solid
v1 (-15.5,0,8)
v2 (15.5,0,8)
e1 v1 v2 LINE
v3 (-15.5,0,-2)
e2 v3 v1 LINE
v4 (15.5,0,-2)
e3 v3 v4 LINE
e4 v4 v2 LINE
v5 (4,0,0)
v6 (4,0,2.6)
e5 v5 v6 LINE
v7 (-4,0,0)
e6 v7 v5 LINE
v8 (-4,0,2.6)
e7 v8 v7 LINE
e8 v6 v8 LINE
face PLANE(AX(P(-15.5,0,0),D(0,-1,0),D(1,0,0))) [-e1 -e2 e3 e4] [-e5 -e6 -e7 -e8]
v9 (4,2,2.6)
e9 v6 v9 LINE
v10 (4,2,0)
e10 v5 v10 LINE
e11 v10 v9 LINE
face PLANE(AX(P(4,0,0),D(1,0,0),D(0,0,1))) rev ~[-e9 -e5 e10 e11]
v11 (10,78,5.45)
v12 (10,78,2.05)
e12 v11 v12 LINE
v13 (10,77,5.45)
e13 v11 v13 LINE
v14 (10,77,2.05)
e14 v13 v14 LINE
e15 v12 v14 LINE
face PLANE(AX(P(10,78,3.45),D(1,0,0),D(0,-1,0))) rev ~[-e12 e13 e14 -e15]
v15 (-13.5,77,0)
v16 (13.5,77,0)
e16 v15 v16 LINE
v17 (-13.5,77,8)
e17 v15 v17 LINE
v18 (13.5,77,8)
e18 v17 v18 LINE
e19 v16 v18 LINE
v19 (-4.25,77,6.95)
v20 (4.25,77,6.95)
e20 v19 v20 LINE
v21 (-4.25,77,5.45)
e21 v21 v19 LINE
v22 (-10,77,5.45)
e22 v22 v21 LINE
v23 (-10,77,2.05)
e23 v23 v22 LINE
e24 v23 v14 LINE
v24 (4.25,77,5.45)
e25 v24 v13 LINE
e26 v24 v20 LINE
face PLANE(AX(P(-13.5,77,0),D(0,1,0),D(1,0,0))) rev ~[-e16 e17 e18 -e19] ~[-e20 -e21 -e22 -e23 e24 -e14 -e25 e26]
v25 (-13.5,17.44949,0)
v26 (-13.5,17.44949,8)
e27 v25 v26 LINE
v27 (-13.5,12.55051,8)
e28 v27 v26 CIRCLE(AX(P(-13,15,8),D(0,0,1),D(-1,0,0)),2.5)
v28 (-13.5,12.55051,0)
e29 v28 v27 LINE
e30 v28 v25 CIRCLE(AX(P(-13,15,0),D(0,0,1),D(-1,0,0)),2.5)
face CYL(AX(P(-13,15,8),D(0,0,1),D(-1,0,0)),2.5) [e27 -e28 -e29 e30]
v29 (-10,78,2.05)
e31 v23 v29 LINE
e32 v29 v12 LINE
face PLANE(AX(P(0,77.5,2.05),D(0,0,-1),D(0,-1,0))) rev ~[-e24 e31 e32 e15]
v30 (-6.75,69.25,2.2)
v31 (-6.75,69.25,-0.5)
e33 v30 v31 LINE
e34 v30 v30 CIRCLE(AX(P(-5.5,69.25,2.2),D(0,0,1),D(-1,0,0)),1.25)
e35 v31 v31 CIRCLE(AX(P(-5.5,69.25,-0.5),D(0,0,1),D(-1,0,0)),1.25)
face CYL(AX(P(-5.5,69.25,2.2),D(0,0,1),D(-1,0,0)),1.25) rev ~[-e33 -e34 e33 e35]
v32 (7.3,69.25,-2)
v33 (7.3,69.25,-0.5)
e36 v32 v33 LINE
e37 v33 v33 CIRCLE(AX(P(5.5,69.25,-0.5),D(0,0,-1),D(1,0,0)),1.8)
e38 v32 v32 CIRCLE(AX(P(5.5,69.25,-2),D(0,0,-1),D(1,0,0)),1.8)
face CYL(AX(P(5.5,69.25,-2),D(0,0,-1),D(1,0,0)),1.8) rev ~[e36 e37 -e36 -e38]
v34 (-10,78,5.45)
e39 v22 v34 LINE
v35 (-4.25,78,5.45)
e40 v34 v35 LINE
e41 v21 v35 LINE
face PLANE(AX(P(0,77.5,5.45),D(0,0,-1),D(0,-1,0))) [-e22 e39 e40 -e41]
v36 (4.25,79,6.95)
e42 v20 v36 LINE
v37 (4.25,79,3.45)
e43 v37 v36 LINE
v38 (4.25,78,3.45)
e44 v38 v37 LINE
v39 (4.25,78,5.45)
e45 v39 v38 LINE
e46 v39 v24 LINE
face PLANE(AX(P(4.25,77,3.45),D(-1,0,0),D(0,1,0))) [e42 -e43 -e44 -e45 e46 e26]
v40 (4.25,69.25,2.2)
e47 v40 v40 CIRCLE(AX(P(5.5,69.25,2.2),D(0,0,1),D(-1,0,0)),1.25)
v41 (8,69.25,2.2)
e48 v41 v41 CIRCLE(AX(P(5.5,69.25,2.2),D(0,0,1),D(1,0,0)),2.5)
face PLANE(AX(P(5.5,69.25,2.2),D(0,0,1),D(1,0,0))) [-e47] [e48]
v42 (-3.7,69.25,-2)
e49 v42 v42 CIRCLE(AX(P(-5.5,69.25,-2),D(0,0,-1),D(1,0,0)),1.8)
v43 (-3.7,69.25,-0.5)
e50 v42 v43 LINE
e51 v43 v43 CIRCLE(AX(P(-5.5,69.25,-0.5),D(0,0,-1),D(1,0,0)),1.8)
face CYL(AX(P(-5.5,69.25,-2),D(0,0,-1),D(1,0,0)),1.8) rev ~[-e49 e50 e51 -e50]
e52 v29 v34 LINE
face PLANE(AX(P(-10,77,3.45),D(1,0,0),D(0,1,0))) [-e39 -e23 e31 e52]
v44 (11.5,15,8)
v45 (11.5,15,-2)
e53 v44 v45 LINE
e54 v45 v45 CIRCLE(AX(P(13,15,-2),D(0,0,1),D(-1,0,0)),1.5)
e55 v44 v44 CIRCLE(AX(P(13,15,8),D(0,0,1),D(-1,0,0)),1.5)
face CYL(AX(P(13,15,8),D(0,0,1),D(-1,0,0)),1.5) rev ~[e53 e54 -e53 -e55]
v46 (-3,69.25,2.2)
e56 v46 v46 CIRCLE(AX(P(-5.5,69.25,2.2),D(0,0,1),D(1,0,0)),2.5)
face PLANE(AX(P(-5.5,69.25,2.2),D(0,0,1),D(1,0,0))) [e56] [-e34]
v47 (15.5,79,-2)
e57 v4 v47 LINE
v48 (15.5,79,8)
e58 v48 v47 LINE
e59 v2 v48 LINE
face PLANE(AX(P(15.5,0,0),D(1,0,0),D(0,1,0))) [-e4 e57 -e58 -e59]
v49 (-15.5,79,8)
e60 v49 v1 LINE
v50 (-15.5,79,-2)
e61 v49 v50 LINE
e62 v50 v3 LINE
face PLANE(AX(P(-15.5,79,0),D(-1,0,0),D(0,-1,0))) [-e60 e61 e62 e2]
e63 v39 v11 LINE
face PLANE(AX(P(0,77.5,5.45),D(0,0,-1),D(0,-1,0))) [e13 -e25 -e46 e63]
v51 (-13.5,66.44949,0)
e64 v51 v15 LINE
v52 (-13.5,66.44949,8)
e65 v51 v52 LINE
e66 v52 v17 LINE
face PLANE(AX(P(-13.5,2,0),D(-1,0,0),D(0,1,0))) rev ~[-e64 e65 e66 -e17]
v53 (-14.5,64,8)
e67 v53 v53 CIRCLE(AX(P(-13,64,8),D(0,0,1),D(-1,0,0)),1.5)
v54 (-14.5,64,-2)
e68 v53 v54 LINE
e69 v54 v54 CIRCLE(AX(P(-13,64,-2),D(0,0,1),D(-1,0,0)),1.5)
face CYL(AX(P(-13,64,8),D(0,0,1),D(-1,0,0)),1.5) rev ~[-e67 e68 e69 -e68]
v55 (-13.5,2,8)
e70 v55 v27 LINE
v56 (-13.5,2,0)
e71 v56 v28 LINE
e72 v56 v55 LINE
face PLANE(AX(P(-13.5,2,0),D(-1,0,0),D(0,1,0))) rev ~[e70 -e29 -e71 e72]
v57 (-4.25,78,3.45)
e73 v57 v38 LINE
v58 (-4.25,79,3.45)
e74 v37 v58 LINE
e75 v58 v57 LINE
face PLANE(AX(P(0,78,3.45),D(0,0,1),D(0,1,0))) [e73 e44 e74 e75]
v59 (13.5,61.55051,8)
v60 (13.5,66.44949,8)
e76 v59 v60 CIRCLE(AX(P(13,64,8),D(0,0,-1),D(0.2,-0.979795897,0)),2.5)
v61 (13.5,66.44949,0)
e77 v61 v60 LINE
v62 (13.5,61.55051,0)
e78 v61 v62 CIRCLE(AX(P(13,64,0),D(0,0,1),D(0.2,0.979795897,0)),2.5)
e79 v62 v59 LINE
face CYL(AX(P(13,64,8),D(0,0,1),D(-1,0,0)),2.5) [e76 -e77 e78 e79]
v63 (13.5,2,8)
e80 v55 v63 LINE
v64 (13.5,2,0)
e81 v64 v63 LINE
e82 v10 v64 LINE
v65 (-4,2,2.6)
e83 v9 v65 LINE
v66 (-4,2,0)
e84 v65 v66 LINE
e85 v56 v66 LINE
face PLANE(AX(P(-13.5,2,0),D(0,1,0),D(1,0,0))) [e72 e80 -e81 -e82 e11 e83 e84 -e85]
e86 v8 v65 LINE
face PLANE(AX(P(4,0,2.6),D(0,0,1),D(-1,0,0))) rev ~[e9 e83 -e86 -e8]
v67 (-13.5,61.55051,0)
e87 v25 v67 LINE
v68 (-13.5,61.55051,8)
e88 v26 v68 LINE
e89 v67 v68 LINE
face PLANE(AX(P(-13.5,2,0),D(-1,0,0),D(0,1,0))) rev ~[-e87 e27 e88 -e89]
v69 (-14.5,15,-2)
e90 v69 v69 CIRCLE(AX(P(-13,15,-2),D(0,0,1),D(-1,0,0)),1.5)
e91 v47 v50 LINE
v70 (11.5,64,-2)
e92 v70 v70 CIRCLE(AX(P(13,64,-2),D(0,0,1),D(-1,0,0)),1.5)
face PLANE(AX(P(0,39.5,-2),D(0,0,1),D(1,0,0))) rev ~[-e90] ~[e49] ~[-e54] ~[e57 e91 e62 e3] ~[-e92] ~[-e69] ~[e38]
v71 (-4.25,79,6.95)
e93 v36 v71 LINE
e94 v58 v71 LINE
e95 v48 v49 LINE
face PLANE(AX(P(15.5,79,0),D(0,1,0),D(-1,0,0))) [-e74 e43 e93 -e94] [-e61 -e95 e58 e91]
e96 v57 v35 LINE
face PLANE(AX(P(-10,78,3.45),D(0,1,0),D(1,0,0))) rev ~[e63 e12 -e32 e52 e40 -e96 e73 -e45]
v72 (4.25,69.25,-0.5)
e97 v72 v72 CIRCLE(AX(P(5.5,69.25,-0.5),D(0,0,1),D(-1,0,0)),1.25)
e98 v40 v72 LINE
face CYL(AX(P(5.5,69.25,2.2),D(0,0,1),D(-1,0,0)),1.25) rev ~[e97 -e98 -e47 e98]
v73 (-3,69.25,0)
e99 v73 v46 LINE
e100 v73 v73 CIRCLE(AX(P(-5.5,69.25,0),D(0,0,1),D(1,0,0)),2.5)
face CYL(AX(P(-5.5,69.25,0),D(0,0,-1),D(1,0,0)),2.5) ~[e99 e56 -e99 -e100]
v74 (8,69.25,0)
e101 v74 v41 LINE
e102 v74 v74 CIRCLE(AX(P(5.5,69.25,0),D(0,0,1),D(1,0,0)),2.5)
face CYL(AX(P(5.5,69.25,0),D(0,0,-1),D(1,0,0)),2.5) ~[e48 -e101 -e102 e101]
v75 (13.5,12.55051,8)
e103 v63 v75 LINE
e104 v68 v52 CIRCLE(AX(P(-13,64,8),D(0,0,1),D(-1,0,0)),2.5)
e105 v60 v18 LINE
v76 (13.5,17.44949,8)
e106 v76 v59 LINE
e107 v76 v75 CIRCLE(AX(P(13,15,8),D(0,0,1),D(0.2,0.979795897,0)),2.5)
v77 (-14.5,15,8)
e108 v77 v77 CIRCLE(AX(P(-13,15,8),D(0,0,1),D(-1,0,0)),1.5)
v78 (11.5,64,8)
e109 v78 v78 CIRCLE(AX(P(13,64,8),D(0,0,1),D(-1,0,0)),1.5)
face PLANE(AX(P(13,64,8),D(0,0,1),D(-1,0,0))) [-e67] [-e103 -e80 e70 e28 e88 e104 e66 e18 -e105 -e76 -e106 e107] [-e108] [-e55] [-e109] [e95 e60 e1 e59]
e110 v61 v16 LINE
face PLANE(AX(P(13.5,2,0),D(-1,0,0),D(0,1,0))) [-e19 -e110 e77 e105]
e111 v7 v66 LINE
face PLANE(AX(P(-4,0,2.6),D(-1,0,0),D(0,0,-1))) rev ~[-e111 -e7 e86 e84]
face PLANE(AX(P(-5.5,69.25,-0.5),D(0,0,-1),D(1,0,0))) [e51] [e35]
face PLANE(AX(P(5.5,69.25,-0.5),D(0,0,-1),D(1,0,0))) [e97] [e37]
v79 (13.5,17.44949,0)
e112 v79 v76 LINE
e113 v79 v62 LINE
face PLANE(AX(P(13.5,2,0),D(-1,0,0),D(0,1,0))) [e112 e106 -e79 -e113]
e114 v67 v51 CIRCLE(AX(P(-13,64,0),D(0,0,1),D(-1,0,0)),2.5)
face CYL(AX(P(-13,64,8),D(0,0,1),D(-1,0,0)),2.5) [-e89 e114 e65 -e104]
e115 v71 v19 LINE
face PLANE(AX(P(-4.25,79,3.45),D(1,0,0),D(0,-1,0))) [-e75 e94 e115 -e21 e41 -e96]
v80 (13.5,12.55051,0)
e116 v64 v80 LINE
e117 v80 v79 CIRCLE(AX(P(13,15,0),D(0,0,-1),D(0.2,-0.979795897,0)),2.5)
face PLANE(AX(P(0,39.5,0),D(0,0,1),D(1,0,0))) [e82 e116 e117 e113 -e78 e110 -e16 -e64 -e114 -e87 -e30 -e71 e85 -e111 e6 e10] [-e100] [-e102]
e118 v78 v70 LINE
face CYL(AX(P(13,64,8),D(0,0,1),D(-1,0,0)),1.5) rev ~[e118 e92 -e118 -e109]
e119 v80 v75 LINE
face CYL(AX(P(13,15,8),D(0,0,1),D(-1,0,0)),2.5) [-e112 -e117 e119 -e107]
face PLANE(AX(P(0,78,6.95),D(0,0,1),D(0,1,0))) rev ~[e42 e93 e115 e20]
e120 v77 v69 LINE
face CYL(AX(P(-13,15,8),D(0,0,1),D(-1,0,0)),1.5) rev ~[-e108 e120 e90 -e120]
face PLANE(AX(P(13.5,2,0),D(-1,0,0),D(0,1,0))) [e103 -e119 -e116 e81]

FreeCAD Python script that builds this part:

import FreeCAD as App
import Part
import Sketcher

V = App.Vector

doc = App.newDocument("Part")
body = doc.addObject("PartDesign::Body", "Body")

# Sketch on XY plane
sketch1 = body.newObject("Sketcher::SketchObject", "Sketch")
sketch1.AttachmentSupport = (doc.getObject("XY_Plane"), [""])
sketch1.MapMode = "FlatFace"
sketch1.addGeometry([
    Part.LineSegment(V(16, 0, 0), V(16, 79, 0)),  # 0
    Part.LineSegment(V(16, 79, 0), V(-16, 79, 0)),  # 1
    Part.LineSegment(V(-16, 79, 0), V(-16, 0, 0)),  # 2
    Part.LineSegment(V(-16, 0, 0), V(16, 0, 0)),  # 3
    Part.LineSegment(V(14, 2, 0), V(-14, 2, 0)),  # 4
    Part.LineSegment(V(-14, 2, 0), V(-14, 77, 0)),  # 5
    Part.LineSegment(V(-14, 77, 0), V(14, 77, 0)),  # 6
    Part.LineSegment(V(14, 77, 0), V(14, 2, 0)),  # 7
], False)
sketch1.addConstraint([
    Sketcher.Constraint("Coincident", 0, 2, 1, 1),
    Sketcher.Constraint("Coincident", 1, 2, 2, 1),
    Sketcher.Constraint("Coincident", 2, 2, 3, 1),
    Sketcher.Constraint("Coincident", 3, 2, 0, 1),
    Sketcher.Constraint("Coincident", 4, 2, 5, 1),
    Sketcher.Constraint("Coincident", 5, 2, 6, 1),
    Sketcher.Constraint("Coincident", 6, 2, 7, 1),
    Sketcher.Constraint("Coincident", 7, 2, 4, 1),
    Sketcher.Constraint("Vertical", 0),
    Sketcher.Constraint("Horizontal", 1),
    Sketcher.Constraint("Vertical", 2),
    Sketcher.Constraint("Horizontal", 3),
    Sketcher.Constraint("Horizontal", 4),
    Sketcher.Constraint("Vertical", 5),
    Sketcher.Constraint("Horizontal", 6),
    Sketcher.Constraint("Vertical", 7),
    Sketcher.Constraint("Symmetric", 2, 2, 3, 2, -1, 1),
    Sketcher.Constraint("DistanceX", 1, 2, 1, 1, 31.0),
    Sketcher.Constraint("DistanceX", 4, 2, 4, 1, 27.0),
    Sketcher.Constraint("DistanceY", 0, 1, 0, 2, 79.0),
    Sketcher.Constraint("DistanceY", 5, 1, 5, 2, 75.0),
    Sketcher.Constraint("DistanceY", -1, 1, 4, 2, 2.0),
    Sketcher.Constraint("DistanceX", 2, 2, 4, 2, 2.0),
])
pad1 = body.newObject("PartDesign::Pad", "Pad")
pad1.Profile = sketch1
pad1.Length = 8

# Sketch on XY plane
sketch2 = body.newObject("Sketcher::SketchObject", "Sketch001")
sketch2.AttachmentSupport = (doc.getObject("XY_Plane"), [""])
sketch2.MapMode = "FlatFace"
sketch2.addGeometry([
    Part.LineSegment(V(-16, 79, 0), V(-16, 0, 0)),
    Part.LineSegment(V(-16, 0, 0), V(16, 0, 0)),
    Part.LineSegment(V(16, 0, 0), V(16, 79, 0)),
    Part.LineSegment(V(16, 79, 0), V(-16, 79, 0)),
], False)
sketch2.addConstraint([
    Sketcher.Constraint("Coincident", 0, 2, 1, 1),
    Sketcher.Constraint("Coincident", 1, 2, 2, 1),
    Sketcher.Constraint("Coincident", 2, 2, 3, 1),
    Sketcher.Constraint("Coincident", 3, 2, 0, 1),
    Sketcher.Constraint("Vertical", 0),
    Sketcher.Constraint("Horizontal", 1),
    Sketcher.Constraint("Vertical", 2),
    Sketcher.Constraint("Horizontal", 3),
    Sketcher.Constraint("Symmetric", 0, 2, 1, 2, -1, 1),
    Sketcher.Constraint("DistanceX", 1, 1, 1, 2, 31.0),
    Sketcher.Constraint("DistanceY", 0, 2, 0, 1, 79.0),
])
pad2 = body.newObject("PartDesign::Pad", "Pad001")
pad2.Profile = sketch2
pad2.Length = 2
pad2.Reversed = True

# Sketch on XY plane
sketch3 = body.newObject("Sketcher::SketchObject", "Sketch002")
sketch3.AttachmentSupport = (doc.getObject("XY_Plane"), [""])
sketch3.MapMode = "FlatFace"
sketch3.addGeometry([
    Part.Circle(V(-5.5, 69.2, 0), V(0, 0, 1), 2.5),
    Part.Circle(V(5.5, 69.2, 0), V(0, 0, 1), 2.5),
], False)
sketch3.addConstraint([
    Sketcher.Constraint("Equal", 0, 1),
    Sketcher.Constraint("Symmetric", 0, 3, 1, 3, -2),
    Sketcher.Constraint("Diameter", 0, 5.0),
    Sketcher.Constraint("DistanceX", 0, 3, 1, 3, 11.0),
    Sketcher.Constraint("DistanceY", -1, 1, 0, 3, 69.25),
])
pad3 = body.newObject("PartDesign::Pad", "Pad002")
pad3.Profile = sketch3
pad3.Length = 2.2

# Sketch on XY plane
sketch4 = body.newObject("Sketcher::SketchObject", "Sketch003")
sketch4.AttachmentSupport = (doc.getObject("XY_Plane"), [""])
sketch4.MapMode = "FlatFace"
sketch4.AttachmentOffset = App.Placement(V(0, 0, 2.2), App.Rotation())
sketch4.addGeometry([
    Part.Circle(V(-5.5, 69.2, 0), V(0, 0, 1), 1.2),
    Part.Circle(V(5.5, 69.2, 0), V(0, 0, 1), 1.2),
], False)
sketch4.addConstraint([
    Sketcher.Constraint("Equal", 0, 1),
    Sketcher.Constraint("Symmetric", 0, 3, 1, 3, -2),
    Sketcher.Constraint("Diameter", 0, 2.5),
    Sketcher.Constraint("DistanceX", 0, 3, 1, 3, 11.0),
    Sketcher.Constraint("DistanceY", -1, 1, 0, 3, 69.25),
])
pocket1 = body.newObject("PartDesign::Pocket", "Pocket")
pocket1.Profile = sketch4
pocket1.Type = "ThroughAll"

# Sketch on XY plane
sketch5 = body.newObject("Sketcher::SketchObject", "Sketch004")
sketch5.AttachmentSupport = (doc.getObject("XY_Plane"), [""])
sketch5.MapMode = "FlatFace"
sketch5.AttachmentOffset = App.Placement(V(0, 0, -2), App.Rotation())
sketch5.addGeometry([
    Part.Circle(V(-5.5, 69.2, 0), V(0, 0, 1), 1.8),
    Part.Circle(V(5.5, 69.2, 0), V(0, 0, 1), 1.8),
], False)
sketch5.addConstraint([
    Sketcher.Constraint("Equal", 0, 1),
    Sketcher.Constraint("Symmetric", 0, 3, 1, 3, -2),
    Sketcher.Constraint("Diameter", 0, 3.6),
    Sketcher.Constraint("DistanceX", 0, 3, 1, 3, 11.0),
    Sketcher.Constraint("DistanceY", -1, 1, 0, 3, 69.25),
])
pocket2 = body.newObject("PartDesign::Pocket", "Pocket001")
pocket2.Profile = sketch5
pocket2.Length = 1.5
pocket2.Reversed = True

# Sketch on XY plane
sketch6 = body.newObject("Sketcher::SketchObject", "Sketch005")
sketch6.AttachmentSupport = (doc.getObject("XY_Plane"), [""])
sketch6.MapMode = "FlatFace"
sketch6.AttachmentOffset = App.Placement(V(0, 0, 3.45), App.Rotation())
sketch6.addGeometry([
    Part.LineSegment(V(-4.2, 79, 0), V(-4.2, 77, 0)),
    Part.LineSegment(V(-4.2, 77, 0), V(4.2, 77, 0)),
    Part.LineSegment(V(4.2, 77, 0), V(4.2, 79, 0)),
    Part.LineSegment(V(4.2, 79, 0), V(-4.2, 79, 0)),
], False)
sketch6.addConstraint([
    Sketcher.Constraint("Coincident", 0, 2, 1, 1),
    Sketcher.Constraint("Coincident", 1, 2, 2, 1),
    Sketcher.Constraint("Coincident", 2, 2, 3, 1),
    Sketcher.Constraint("Coincident", 3, 2, 0, 1),
    Sketcher.Constraint("Vertical", 0),
    Sketcher.Constraint("Horizontal", 1),
    Sketcher.Constraint("Vertical", 2),
    Sketcher.Constraint("Horizontal", 3),
    Sketcher.Constraint("DistanceY", 0, 2, 0, 1, 2.0),
    Sketcher.Constraint("DistanceX", 1, 1, 1, 2, 8.5),
    Sketcher.Constraint("DistanceY", -1, 1, 0, 2, 77.0),
    Sketcher.Constraint("DistanceX", 0, 2, -1, 1, 4.25),
])
pocket3 = body.newObject("PartDesign::Pocket", "Pocket002")
pocket3.Profile = sketch6
pocket3.Length = 3.5
pocket3.Reversed = True

# Sketch on XY plane
sketch7 = body.newObject("Sketcher::SketchObject", "Sketch006")
sketch7.AttachmentSupport = (doc.getObject("XY_Plane"), [""])
sketch7.MapMode = "FlatFace"
sketch7.AttachmentOffset = App.Placement(V(0, 0, 8), App.Rotation())
sketch7.addGeometry([
    Part.Circle(V(13, 64, 0), V(0, 0, 1), 2.5),
    Part.Circle(V(-13, 64, 0), V(0, 0, 1), 2.5),
    Part.Circle(V(13, 15, 0), V(0, 0, 1), 2.5),
    Part.Circle(V(-13, 15, 0), V(0, 0, 1), 2.5),
], False)
sketch7.addConstraint([
    Sketcher.Constraint("Equal", 0, 1),
    Sketcher.Constraint("Equal", 1, 2),
    Sketcher.Constraint("Equal", 2, 3),
    Sketcher.Constraint("Symmetric", 0, 3, 1, 3, -2),
    Sketcher.Constraint("Symmetric", 2, 3, 3, 3, -2),
    Sketcher.Constraint("Vertical", 0, 3, 2, 3),
    Sketcher.Constraint("Diameter", 0, 5.0),
    Sketcher.Constraint("DistanceX", -1, 1, 0, 3, 13.0),
    Sketcher.Constraint("DistanceY", -1, 1, 0, 3, 64.0),
    Sketcher.Constraint("DistanceY", -1, 1, 2, 3, 15.0),
])
pad4 = body.newObject("PartDesign::Pad", "Pad003")
pad4.Profile = sketch7
pad4.Length = 10
pad4.Reversed = True

# Sketch on XY plane
sketch8 = body.newObject("Sketcher::SketchObject", "Sketch007")
sketch8.AttachmentSupport = (doc.getObject("XY_Plane"), [""])
sketch8.MapMode = "FlatFace"
sketch8.AttachmentOffset = App.Placement(V(0, 0, 8), App.Rotation())
sketch8.addGeometry([
    Part.Circle(V(13, 64, 0), V(0, 0, 1), 1.5),
    Part.Circle(V(-13, 64, 0), V(0, 0, 1), 1.5),
    Part.Circle(V(13, 15, 0), V(0, 0, 1), 1.5),
    Part.Circle(V(-13, 15, 0), V(0, 0, 1), 1.5),
], False)
sketch8.addConstraint([
    Sketcher.Constraint("Equal", 0, 1),
    Sketcher.Constraint("Equal", 1, 2),
    Sketcher.Constraint("Equal", 2, 3),
    Sketcher.Constraint("Symmetric", 0, 3, 1, 3, -2),
    Sketcher.Constraint("Symmetric", 2, 3, 3, 3, -2),
    Sketcher.Constraint("Vertical", 0, 3, 2, 3),
    Sketcher.Constraint("Diameter", 0, 3.0),
    Sketcher.Constraint("DistanceX", -1, 1, 0, 3, 13.0),
    Sketcher.Constraint("DistanceY", -1, 1, 0, 3, 64.0),
    Sketcher.Constraint("DistanceY", -1, 1, 2, 3, 15.0),
])
pocket4 = body.newObject("PartDesign::Pocket", "Pocket003")
pocket4.Profile = sketch8
pocket4.Length = 13

# Sketch on XY plane
sketch9 = body.newObject("Sketcher::SketchObject", "Sketch008")
sketch9.AttachmentSupport = (doc.getObject("XY_Plane"), [""])
sketch9.MapMode = "FlatFace"
sketch9.AttachmentOffset = App.Placement(V(0, 0, 3.45), App.Rotation())
sketch9.addGeometry([
    Part.LineSegment(V(-10, 77, 0), V(10, 77, 0)),
    Part.LineSegment(V(10, 77, 0), V(10, 78, 0)),
    Part.LineSegment(V(10, 78, 0), V(-10, 78, 0)),
    Part.LineSegment(V(-10, 78, 0), V(-10, 77, 0)),
], False)
sketch9.addConstraint([
    Sketcher.Constraint("Coincident", 0, 2, 1, 1),
    Sketcher.Constraint("Coincident", 1, 2, 2, 1),
    Sketcher.Constraint("Coincident", 2, 2, 3, 1),
    Sketcher.Constraint("Coincident", 3, 2, 0, 1),
    Sketcher.Constraint("Horizontal", 0),
    Sketcher.Constraint("Vertical", 1),
    Sketcher.Constraint("Horizontal", 2),
    Sketcher.Constraint("Vertical", 3),
    Sketcher.Constraint("DistanceX", 0, 1, 0, 2, 20.0),
    Sketcher.Constraint("DistanceY", 1, 1, 1, 2, 1.0),
    Sketcher.Constraint("DistanceX", -1, 1, 0, 2, 10.0),
    Sketcher.Constraint("DistanceY", -1, 1, 0, 2, 77.0),
])
pocket5 = body.newObject("PartDesign::Pocket", "Pocket004")
pocket5.Profile = sketch9
pocket5.Type = "TwoLengths"
pocket5.Length = 1.4
pocket5.Length2 = 2

# Sketch on XZ plane
sketch10 = body.newObject("Sketcher::SketchObject", "Sketch009")
sketch10.AttachmentSupport = (doc.getObject("XZ_Plane"), [""])
sketch10.MapMode = "FlatFace"
sketch10.addGeometry([
    Part.LineSegment(V(4, 0, 0), V(4, 2.6, 0)),
    Part.LineSegment(V(4, 2.6, 0), V(-4, 2.6, 0)),
    Part.LineSegment(V(-4, 2.6, 0), V(-4, 0, 0)),
    Part.LineSegment(V(-4, 0, 0), V(4, 0, 0)),
], False)
sketch10.addConstraint([
    Sketcher.Constraint("Coincident", 0, 2, 1, 1),
    Sketcher.Constraint("Coincident", 1, 2, 2, 1),
    Sketcher.Constraint("Coincident", 2, 2, 3, 1),
    Sketcher.Constraint("Coincident", 3, 2, 0, 1),
    Sketcher.Constraint("Vertical", 0),
    Sketcher.Constraint("Horizontal", 1),
    Sketcher.Constraint("Vertical", 2),
    Sketcher.Constraint("Horizontal", 3),
    Sketcher.Constraint("Symmetric", 2, 2, 3, 2, -1, 1),
    Sketcher.Constraint("DistanceX", 1, 2, 1, 1, 8.0),
    Sketcher.Constraint("DistanceY", 0, 1, 0, 2, 2.6),
])
pocket6 = body.newObject("PartDesign::Pocket", "Pocket005")
pocket6.Profile = sketch10
pocket6.Length = 2

doc.recompute()
